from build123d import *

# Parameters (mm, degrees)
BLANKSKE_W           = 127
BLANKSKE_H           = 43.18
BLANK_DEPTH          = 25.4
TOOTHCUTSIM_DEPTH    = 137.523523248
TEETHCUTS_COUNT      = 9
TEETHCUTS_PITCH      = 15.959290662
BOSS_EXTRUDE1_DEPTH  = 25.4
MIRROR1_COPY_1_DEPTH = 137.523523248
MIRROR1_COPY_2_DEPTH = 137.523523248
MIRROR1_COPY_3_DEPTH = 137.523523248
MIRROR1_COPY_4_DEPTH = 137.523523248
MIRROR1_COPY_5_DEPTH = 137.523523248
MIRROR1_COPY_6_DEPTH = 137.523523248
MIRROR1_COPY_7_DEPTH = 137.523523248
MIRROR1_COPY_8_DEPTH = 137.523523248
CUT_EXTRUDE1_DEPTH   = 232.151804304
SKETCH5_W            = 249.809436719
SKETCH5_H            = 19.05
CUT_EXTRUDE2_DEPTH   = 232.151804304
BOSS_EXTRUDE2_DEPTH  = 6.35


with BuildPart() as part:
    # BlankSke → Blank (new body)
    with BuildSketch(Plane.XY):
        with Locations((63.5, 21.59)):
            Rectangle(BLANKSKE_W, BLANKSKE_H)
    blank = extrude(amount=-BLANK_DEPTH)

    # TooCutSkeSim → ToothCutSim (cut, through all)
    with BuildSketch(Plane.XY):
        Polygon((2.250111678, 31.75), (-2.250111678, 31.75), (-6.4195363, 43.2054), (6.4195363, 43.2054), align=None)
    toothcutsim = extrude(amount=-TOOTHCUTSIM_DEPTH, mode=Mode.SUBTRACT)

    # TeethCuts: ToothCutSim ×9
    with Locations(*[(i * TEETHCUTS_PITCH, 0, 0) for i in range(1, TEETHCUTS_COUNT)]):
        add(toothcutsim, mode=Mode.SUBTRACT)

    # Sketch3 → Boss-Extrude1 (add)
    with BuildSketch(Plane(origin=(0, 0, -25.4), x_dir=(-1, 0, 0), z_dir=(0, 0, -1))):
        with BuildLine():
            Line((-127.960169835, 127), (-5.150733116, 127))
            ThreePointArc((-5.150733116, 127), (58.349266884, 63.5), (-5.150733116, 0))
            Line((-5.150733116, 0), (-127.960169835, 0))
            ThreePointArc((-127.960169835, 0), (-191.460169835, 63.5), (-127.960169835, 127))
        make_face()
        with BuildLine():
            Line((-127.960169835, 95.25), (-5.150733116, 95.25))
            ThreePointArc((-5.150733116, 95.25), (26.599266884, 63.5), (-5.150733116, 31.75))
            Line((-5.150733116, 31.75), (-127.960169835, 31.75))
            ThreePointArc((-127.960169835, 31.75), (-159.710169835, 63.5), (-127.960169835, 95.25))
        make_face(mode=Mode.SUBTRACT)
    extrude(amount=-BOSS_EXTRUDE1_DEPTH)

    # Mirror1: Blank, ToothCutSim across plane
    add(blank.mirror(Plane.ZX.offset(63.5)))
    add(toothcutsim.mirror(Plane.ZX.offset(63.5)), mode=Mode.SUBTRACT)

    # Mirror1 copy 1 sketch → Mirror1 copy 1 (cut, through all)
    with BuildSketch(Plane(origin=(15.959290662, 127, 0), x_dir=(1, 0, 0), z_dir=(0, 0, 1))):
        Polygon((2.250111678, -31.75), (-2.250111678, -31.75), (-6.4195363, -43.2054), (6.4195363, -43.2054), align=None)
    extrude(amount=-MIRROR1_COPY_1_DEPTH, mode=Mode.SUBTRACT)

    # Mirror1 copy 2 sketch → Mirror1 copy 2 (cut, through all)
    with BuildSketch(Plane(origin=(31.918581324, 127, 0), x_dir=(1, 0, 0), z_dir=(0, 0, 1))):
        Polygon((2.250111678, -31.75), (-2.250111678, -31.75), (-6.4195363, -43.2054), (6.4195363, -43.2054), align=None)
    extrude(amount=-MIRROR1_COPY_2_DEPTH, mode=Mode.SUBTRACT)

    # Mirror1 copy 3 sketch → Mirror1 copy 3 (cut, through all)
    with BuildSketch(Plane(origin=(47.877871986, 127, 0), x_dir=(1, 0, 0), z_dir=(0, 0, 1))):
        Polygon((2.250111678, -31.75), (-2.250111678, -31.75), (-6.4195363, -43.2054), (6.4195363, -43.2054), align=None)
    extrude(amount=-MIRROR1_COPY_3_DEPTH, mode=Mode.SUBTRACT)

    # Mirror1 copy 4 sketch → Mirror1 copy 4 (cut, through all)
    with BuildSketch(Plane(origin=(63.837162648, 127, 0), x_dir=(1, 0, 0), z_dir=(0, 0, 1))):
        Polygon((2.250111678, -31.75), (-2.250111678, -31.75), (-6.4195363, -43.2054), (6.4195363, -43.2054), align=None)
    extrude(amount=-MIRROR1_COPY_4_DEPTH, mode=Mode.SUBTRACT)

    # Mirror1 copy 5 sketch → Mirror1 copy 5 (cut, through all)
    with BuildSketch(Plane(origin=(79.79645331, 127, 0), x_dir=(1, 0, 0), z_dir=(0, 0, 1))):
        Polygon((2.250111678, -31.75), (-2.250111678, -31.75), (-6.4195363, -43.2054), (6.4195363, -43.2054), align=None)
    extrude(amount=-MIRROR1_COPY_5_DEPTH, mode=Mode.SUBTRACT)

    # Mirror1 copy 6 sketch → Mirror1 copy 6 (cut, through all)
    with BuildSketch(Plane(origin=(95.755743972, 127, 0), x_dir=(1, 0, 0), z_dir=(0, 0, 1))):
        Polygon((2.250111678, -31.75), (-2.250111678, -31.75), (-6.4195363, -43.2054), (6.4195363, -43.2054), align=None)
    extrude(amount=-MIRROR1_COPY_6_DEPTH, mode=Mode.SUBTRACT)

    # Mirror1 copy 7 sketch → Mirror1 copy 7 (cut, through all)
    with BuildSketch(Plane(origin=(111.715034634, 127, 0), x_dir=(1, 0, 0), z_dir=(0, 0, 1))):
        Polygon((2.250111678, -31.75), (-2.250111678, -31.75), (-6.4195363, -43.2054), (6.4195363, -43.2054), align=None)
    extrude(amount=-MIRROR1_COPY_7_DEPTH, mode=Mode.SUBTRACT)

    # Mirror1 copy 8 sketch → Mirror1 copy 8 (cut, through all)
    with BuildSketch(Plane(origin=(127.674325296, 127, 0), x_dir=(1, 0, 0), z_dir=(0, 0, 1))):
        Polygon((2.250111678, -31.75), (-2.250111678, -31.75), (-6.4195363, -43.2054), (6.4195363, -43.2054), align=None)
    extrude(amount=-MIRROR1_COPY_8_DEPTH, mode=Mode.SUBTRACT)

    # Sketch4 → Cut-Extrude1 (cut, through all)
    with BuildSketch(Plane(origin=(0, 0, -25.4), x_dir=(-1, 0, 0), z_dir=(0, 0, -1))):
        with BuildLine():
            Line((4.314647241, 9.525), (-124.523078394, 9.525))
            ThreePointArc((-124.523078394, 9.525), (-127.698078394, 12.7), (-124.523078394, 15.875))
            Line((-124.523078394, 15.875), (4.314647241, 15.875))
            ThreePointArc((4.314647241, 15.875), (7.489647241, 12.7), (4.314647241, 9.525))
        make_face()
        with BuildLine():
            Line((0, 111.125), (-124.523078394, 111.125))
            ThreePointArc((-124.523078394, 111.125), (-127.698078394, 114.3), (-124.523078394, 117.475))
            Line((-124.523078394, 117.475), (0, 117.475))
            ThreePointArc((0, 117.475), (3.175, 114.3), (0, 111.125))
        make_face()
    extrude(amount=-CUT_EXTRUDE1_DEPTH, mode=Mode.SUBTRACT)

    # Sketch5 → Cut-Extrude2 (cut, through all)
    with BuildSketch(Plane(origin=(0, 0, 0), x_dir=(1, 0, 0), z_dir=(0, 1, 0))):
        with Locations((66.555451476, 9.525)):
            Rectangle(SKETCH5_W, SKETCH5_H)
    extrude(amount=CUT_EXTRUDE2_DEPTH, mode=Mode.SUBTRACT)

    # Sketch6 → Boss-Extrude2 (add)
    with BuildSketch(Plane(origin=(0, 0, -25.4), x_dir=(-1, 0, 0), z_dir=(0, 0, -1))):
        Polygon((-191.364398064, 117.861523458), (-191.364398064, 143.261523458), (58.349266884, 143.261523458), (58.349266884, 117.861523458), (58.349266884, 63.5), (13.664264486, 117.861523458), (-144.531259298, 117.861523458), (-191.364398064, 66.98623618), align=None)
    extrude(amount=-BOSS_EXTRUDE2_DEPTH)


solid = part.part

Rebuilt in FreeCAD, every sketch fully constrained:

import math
import FreeCAD as App
import Part
import Sketcher
from FreeCAD import Vector
Q = App.Units.Quantity


def add_polygon(sketch, points):
    """Adds a closed chain of lines whose ends are joined by coincident constraints."""
    first, n = sketch.GeometryCount, len(points)
    for a, b in zip(points, points[1:] + points[:1]):
        sketch.addGeometry(Part.LineSegment(App.Vector(*a, 0), App.Vector(*b, 0)), False)
    for i in range(n):
        sketch.addConstraint(Sketcher.Constraint("Coincident", first + i, 2, first + (i + 1) % n, 1))

doc = App.newDocument("Part")
body = doc.addObject("PartDesign::Body", "Body")

sketch1 = body.newObject("Sketcher::SketchObject", "Sketch")
sketch1.AttachmentSupport = (doc.getObject("XY_Plane"), [""])
sketch1.MapMode = "FlatFace"
add_polygon(sketch1, [(0, 43.18), (0, 0), (127, 0), (127, 43.18)])
sketch1.addConstraint(Sketcher.Constraint("Vertical", 0))
sketch1.addConstraint(Sketcher.Constraint("Horizontal", 1))
sketch1.addConstraint(Sketcher.Constraint("Vertical", 2))
sketch1.addConstraint(Sketcher.Constraint("Horizontal", 3))
sketch1.addConstraint(Sketcher.Constraint("Coincident", 0, 2, -1, 1))
sketch1.addConstraint(Sketcher.Constraint("DistanceX", 1, 1, 1, 2, Q("5 in")))
sketch1.addConstraint(Sketcher.Constraint("DistanceY", 0, 2, 0, 1, Q("1.7 in")))
pad1 = body.newObject("PartDesign::Pad", "Pad")
pad1.Profile = sketch1
pad1.Length = Q("1 in")
pad1.Reversed = True

sketch2 = body.newObject("Sketcher::SketchObject", "Sketch001")
sketch2.AttachmentSupport = (doc.getObject("XY_Plane"), [""])
sketch2.MapMode = "FlatFace"
add_polygon(sketch2, [(-2.250112, 31.75), (2.250112, 31.75), (6.419536, 43.2054), (-6.419536, 43.2054)])
sketch2.addConstraint(Sketcher.Constraint("Horizontal", 0))
sketch2.addConstraint(Sketcher.Constraint("Horizontal", 2))
sketch2.addConstraint(Sketcher.Constraint("Equal", 1, 3))
sketch2.addConstraint(Sketcher.Constraint("Angle", 1, Q("70 deg")))
sketch2.addConstraint(Sketcher.Constraint("DistanceY", -1, 1, 0, 2, Q("1.25 in")))
sketch2.addConstraint(Sketcher.Constraint("DistanceY", -1, 1, 1, 2, Q("1.701 in")))
sketch2.addConstraint(Sketcher.Constraint("DistanceX", 0, 1, 0, 2, 4.500223))
sketch2.addConstraint(Sketcher.Constraint("DistanceX", -1, 1, 0, 2, 2.250112))
pocket1 = body.newObject("PartDesign::Pocket", "Pocket")
pocket1.Profile = sketch2
pocket1.Type = "ThroughAll"
doc.recompute()

linearpattern = body.newObject("PartDesign::LinearPattern", "LinearPattern")
linearpattern.Originals = [pocket1]
linearpattern.Direction = (doc.getObject("X_Axis"), [""])
linearpattern.Mode = "offset"
linearpattern.Offset = 15.959291
linearpattern.Occurrences = 9
body.Tip = linearpattern

sketch3 = body.newObject("Sketcher::SketchObject", "Sketch002")
sketch3.AttachmentSupport = (doc.getObject("XY_Plane"), [""])
sketch3.MapMode = "FlatFace"
sketch3.AttachmentOffset = App.Placement(Vector(0, 0, -1 * 25.4), App.Rotation())
sketch3.addGeometry(Part.LineSegment(Vector(5.150733, 127, 0), Vector(127.96017, 127, 0)), False)
sketch3.addGeometry(Part.ArcOfCircle(Part.Circle(Vector(127.96017, 63.5, 0), Vector(0, 0, 1), 63.5), math.radians(-90), math.radians(90)), False)
sketch3.addGeometry(Part.LineSegment(Vector(127.96017, 0, 0), Vector(5.150733, 0, 0)), False)
sketch3.addGeometry(Part.ArcOfCircle(Part.Circle(Vector(5.150733, 63.5, 0), Vector(0, 0, 1), 63.5), math.radians(90), math.radians(270)), False)
sketch3.addGeometry(Part.LineSegment(Vector(127.96017, 95.25, 0), Vector(5.150733, 95.25, 0)), False)
sketch3.addGeometry(Part.ArcOfCircle(Part.Circle(Vector(5.150733, 63.5, 0), Vector(0, 0, 1), 31.75), math.radians(90), math.radians(270)), False)
sketch3.addGeometry(Part.LineSegment(Vector(5.150733, 31.75, 0), Vector(127.96017, 31.75, 0)), False)
sketch3.addGeometry(Part.ArcOfCircle(Part.Circle(Vector(127.96017, 63.5, 0), Vector(0, 0, 1), 31.75), math.radians(-90), math.radians(90)), False)
sketch3.addConstraint(Sketcher.Constraint("Tangent", 0, 2, 1, 2))
sketch3.addConstraint(Sketcher.Constraint("Tangent", 1, 1, 2, 1))
sketch3.addConstraint(Sketcher.Constraint("Tangent", 2, 2, 3, 2))
sketch3.addConstraint(Sketcher.Constraint("Tangent", 3, 1, 0, 1))
sketch3.addConstraint(Sketcher.Constraint("Tangent", 4, 2, 5, 1))
sketch3.addConstraint(Sketcher.Constraint("Tangent", 5, 2, 6, 1))
sketch3.addConstraint(Sketcher.Constraint("Tangent", 6, 2, 7, 1))
sketch3.addConstraint(Sketcher.Constraint("Tangent", 7, 2, 4, 1))
sketch3.addConstraint(Sketcher.Constraint("Horizontal", 0))
sketch3.addConstraint(Sketcher.Constraint("Horizontal", 2))
sketch3.addConstraint(Sketcher.Constraint("Horizontal", 4))
sketch3.addConstraint(Sketcher.Constraint("Horizontal", 6))
sketch3.addConstraint(Sketcher.Constraint("Coincident", 5, 3, 3, 3))
sketch3.addConstraint(Sketcher.Constraint("PointOnObject", 1, 1, -1))
sketch3.addConstraint(Sketcher.Constraint("Vertical", 7, 3, 0, 2))
sketch3.addConstraint(Sketcher.Constraint("Radius", 1, Q("2.5 in")))
sketch3.addConstraint(Sketcher.Constraint("Radius", 5, Q("1.25 in")))
sketch3.addConstraint(Sketcher.Constraint("DistanceX", 0, 1, 0, 2, 122.809437))
sketch3.addConstraint(Sketcher.Constraint("DistanceX", -1, 1, 1, 3, 127.96017))
pad2 = body.newObject("PartDesign::Pad", "Pad001")
pad2.Profile = sketch3
pad2.Length = Q("1 in")
doc.recompute()

datumplane = body.newObject("PartDesign::Plane", "DatumPlane")
datumplane.AttachmentSupport = (doc.getObject("XZ_Plane"), [""])
datumplane.MapMode = "FlatFace"
datumplane.AttachmentOffset = App.Placement(Vector(0, 0, -2.5 * 25.4), App.Rotation())
mirrored = body.newObject("PartDesign::Mirrored", "Mirrored")
mirrored.Originals = [pad1, pocket1]
mirrored.MirrorPlane = (datumplane, [""])
body.Tip = mirrored

sketch4 = body.newObject("Sketcher::SketchObject", "Sketch003")
sketch4.AttachmentSupport = (doc.getObject("XY_Plane"), [""])
sketch4.MapMode = "FlatFace"
add_polygon(sketch4, [(18.209402, 95.25), (13.709179, 95.25), (9.539754, 83.7946), (22.378827, 83.7946)])
sketch4.addConstraint(Sketcher.Constraint("Horizontal", 0))
sketch4.addConstraint(Sketcher.Constraint("Horizontal", 2))
sketch4.addConstraint(Sketcher.Constraint("Equal", 1, 3))
sketch4.addConstraint(Sketcher.Constraint("Angle", 1, Q("-110 deg")))
sketch4.addConstraint(Sketcher.Constraint("DistanceY", -1, 1, 0, 2, Q("3.75 in")))
sketch4.addConstraint(Sketcher.Constraint("DistanceY", -1, 1, 1, 2, Q("3.299 in")))
sketch4.addConstraint(Sketcher.Constraint("DistanceX", 0, 2, 0, 1, 4.500223))
sketch4.addConstraint(Sketcher.Constraint("DistanceX", -1, 1, 0, 2, 13.709179))
pocket2 = body.newObject("PartDesign::Pocket", "Pocket001")
pocket2.Profile = sketch4
pocket2.Type = "ThroughAll"

sketch5 = body.newObject("Sketcher::SketchObject", "Sketch004")
sketch5.AttachmentSupport = (doc.getObject("XY_Plane"), [""])
sketch5.MapMode = "FlatFace"
add_polygon(sketch5, [(34.168693, 95.25), (29.66847, 95.25), (25.499045, 83.7946), (38.338118, 83.7946)])
sketch5.addConstraint(Sketcher.Constraint("Horizontal", 0))
sketch5.addConstraint(Sketcher.Constraint("Horizontal", 2))
sketch5.addConstraint(Sketcher.Constraint("Equal", 1, 3))
sketch5.addConstraint(Sketcher.Constraint("Angle", 1, Q("-110 deg")))
sketch5.addConstraint(Sketcher.Constraint("DistanceY", -1, 1, 0, 2, Q("3.75 in")))
sketch5.addConstraint(Sketcher.Constraint("DistanceY", -1, 1, 1, 2, Q("3.299 in")))
sketch5.addConstraint(Sketcher.Constraint("DistanceX", 0, 2, 0, 1, 4.500223))
sketch5.addConstraint(Sketcher.Constraint("DistanceX", -1, 1, 0, 2, 29.66847))
pocket3 = body.newObject("PartDesign::Pocket", "Pocket002")
pocket3.Profile = sketch5
pocket3.Type = "ThroughAll"

sketch6 = body.newObject("Sketcher::SketchObject", "Sketch005")
sketch6.AttachmentSupport = (doc.getObject("XY_Plane"), [""])
sketch6.MapMode = "FlatFace"
add_polygon(sketch6, [(50.127984, 95.25), (45.62776, 95.25), (41.458336, 83.7946), (54.297408, 83.7946)])
sketch6.addConstraint(Sketcher.Constraint("Horizontal", 0))
sketch6.addConstraint(Sketcher.Constraint("Horizontal", 2))
sketch6.addConstraint(Sketcher.Constraint("Equal", 1, 3))
sketch6.addConstraint(Sketcher.Constraint("Angle", 1, Q("-110 deg")))
sketch6.addConstraint(Sketcher.Constraint("DistanceY", -1, 1, 0, 2, Q("3.75 in")))
sketch6.addConstraint(Sketcher.Constraint("DistanceY", -1, 1, 1, 2, Q("3.299 in")))
sketch6.addConstraint(Sketcher.Constraint("DistanceX", 0, 2, 0, 1, 4.500223))
sketch6.addConstraint(Sketcher.Constraint("DistanceX", -1, 1, 0, 2, 45.62776))
pocket4 = body.newObject("PartDesign::Pocket", "Pocket003")
pocket4.Profile = sketch6
pocket4.Type = "ThroughAll"

sketch7 = body.newObject("Sketcher::SketchObject", "Sketch006")
sketch7.AttachmentSupport = (doc.getObject("XY_Plane"), [""])
sketch7.MapMode = "FlatFace"
add_polygon(sketch7, [(66.087274, 95.25), (61.587051, 95.25), (57.417626, 83.7946), (70.256699, 83.7946)])
sketch7.addConstraint(Sketcher.Constraint("Horizontal", 0))
sketch7.addConstraint(Sketcher.Constraint("Horizontal", 2))
sketch7.addConstraint(Sketcher.Constraint("Equal", 1, 3))
sketch7.addConstraint(Sketcher.Constraint("Angle", 1, Q("-110 deg")))
sketch7.addConstraint(Sketcher.Constraint("DistanceY", -1, 1, 0, 2, Q("3.75 in")))
sketch7.addConstraint(Sketcher.Constraint("DistanceY", -1, 1, 1, 2, Q("3.299 in")))
sketch7.addConstraint(Sketcher.Constraint("DistanceX", -1, 1, 2, 2, 70.256699))
sketch7.addConstraint(Sketcher.Constraint("DistanceX", 0, 2, 0, 1, 4.500223))
pocket5 = body.newObject("PartDesign::Pocket", "Pocket004")
pocket5.Profile = sketch7
pocket5.Type = "ThroughAll"

sketch8 = body.newObject("Sketcher::SketchObject", "Sketch007")
sketch8.AttachmentSupport = (doc.getObject("XY_Plane"), [""])
sketch8.MapMode = "FlatFace"
add_polygon(sketch8, [(82.046565, 95.25), (77.546342, 95.25), (73.376917, 83.7946), (86.21599, 83.7946)])
sketch8.addConstraint(Sketcher.Constraint("Horizontal", 0))
sketch8.addConstraint(Sketcher.Constraint("Horizontal", 2))
sketch8.addConstraint(Sketcher.Constraint("Equal", 1, 3))
sketch8.addConstraint(Sketcher.Constraint("Angle", 1, Q("-110 deg")))
sketch8.addConstraint(Sketcher.Constraint("DistanceY", -1, 1, 0, 2, Q("3.75 in")))
sketch8.addConstraint(Sketcher.Constraint("DistanceY", -1, 1, 1, 2, Q("3.299 in")))
sketch8.addConstraint(Sketcher.Constraint("DistanceX", 0, 2, 0, 1, 4.500223))
sketch8.addConstraint(Sketcher.Constraint("DistanceX", -1, 1, 0, 2, 77.546342))
pocket6 = body.newObject("PartDesign::Pocket", "Pocket005")
pocket6.Profile = sketch8
pocket6.Type = "ThroughAll"

sketch9 = body.newObject("Sketcher::SketchObject", "Sketch008")
sketch9.AttachmentSupport = (doc.getObject("XY_Plane"), [""])
sketch9.MapMode = "FlatFace"
add_polygon(sketch9, [(98.005856, 95.25), (93.505632, 95.25), (89.336208, 83.7946), (102.17528, 83.7946)])
sketch9.addConstraint(Sketcher.Constraint("Horizontal", 0))
sketch9.addConstraint(Sketcher.Constraint("Horizontal", 2))
sketch9.addConstraint(Sketcher.Constraint("Equal", 1, 3))
sketch9.addConstraint(Sketcher.Constraint("Angle", 1, Q("-110 deg")))
sketch9.addConstraint(Sketcher.Constraint("DistanceY", -1, 1, 0, 2, Q("3.75 in")))
sketch9.addConstraint(Sketcher.Constraint("DistanceY", -1, 1, 1, 2, Q("3.299 in")))
sketch9.addConstraint(Sketcher.Constraint("DistanceX", 0, 2, 0, 1, 4.500223))
sketch9.addConstraint(Sketcher.Constraint("DistanceX", -1, 1, 2, 2, 102.17528))
pocket7 = body.newObject("PartDesign::Pocket", "Pocket006")
pocket7.Profile = sketch9
pocket7.Type = "ThroughAll"

sketch10 = body.newObject("Sketcher::SketchObject", "Sketch009")
sketch10.AttachmentSupport = (doc.getObject("XY_Plane"), [""])
sketch10.MapMode = "FlatFace"
add_polygon(sketch10, [(113.965146, 95.25), (109.464923, 95.25), (105.295498, 83.7946), (118.134571, 83.7946)])
sketch10.addConstraint(Sketcher.Constraint("Horizontal", 0))
sketch10.addConstraint(Sketcher.Constraint("Horizontal", 2))
sketch10.addConstraint(Sketcher.Constraint("Equal", 1, 3))
sketch10.addConstraint(Sketcher.Constraint("Angle", 1, Q("-110 deg")))
sketch10.addConstraint(Sketcher.Constraint("DistanceY", -1, 1, 0, 2, Q("3.75 in")))
sketch10.addConstraint(Sketcher.Constraint("DistanceY", -1, 1, 1, 2, Q("3.299 in")))
sketch10.addConstraint(Sketcher.Constraint("DistanceX", -1, 1, 1, 2, 105.295498))
sketch10.addConstraint(Sketcher.Constraint("DistanceX", 0, 2, 0, 1, 4.500223))
pocket8 = body.newObject("PartDesign::Pocket", "Pocket007")
pocket8.Profile = sketch10
pocket8.Type = "ThroughAll"

sketch11 = body.newObject("Sketcher::SketchObject", "Sketch010")
sketch11.AttachmentSupport = (doc.getObject("XY_Plane"), [""])
sketch11.MapMode = "FlatFace"
add_polygon(sketch11, [(129.924437, 95.25), (125.424214, 95.25), (121.254789, 83.7946), (134.093862, 83.7946)])
sketch11.addConstraint(Sketcher.Constraint("Horizontal", 0))
sketch11.addConstraint(Sketcher.Constraint("Horizontal", 2))
sketch11.addConstraint(Sketcher.Constraint("Equal", 1, 3))
sketch11.addConstraint(Sketcher.Constraint("Angle", 1, Q("-110 deg")))
sketch11.addConstraint(Sketcher.Constraint("DistanceY", -1, 1, 0, 2, Q("3.75 in")))
sketch11.addConstraint(Sketcher.Constraint("DistanceY", -1, 1, 1, 2, Q("3.299 in")))
sketch11.addConstraint(Sketcher.Constraint("DistanceX", 0, 2, 0, 1, 4.500223))
sketch11.addConstraint(Sketcher.Constraint("DistanceX", -1, 1, 1, 2, 121.254789))
pocket9 = body.newObject("PartDesign::Pocket", "Pocket008")
pocket9.Profile = sketch11
pocket9.Type = "ThroughAll"

sketch12 = body.newObject("Sketcher::SketchObject", "Sketch011")
sketch12.AttachmentSupport = (doc.getObject("XY_Plane"), [""])
sketch12.MapMode = "FlatFace"
sketch12.AttachmentOffset = App.Placement(Vector(0, 0, -1 * 25.4), App.Rotation())
sketch12.addGeometry(Part.LineSegment(Vector(124.523078, 9.525, 0), Vector(-4.314647, 9.525, 0)), False)
sketch12.addGeometry(Part.ArcOfCircle(Part.Circle(Vector(-4.314647, 12.7, 0), Vector(0, 0, 1), 3.175), math.radians(90), math.radians(270)), False)
sketch12.addGeometry(Part.LineSegment(Vector(-4.314647, 15.875, 0), Vector(124.523078, 15.875, 0)), False)
sketch12.addGeometry(Part.ArcOfCircle(Part.Circle(Vector(124.523078, 12.7, 0), Vector(0, 0, 1), 3.175), math.radians(-90), math.radians(90)), False)
sketch12.addGeometry(Part.LineSegment(Vector(124.523078, 111.125, 0), Vector(0, 111.125, 0)), False)
sketch12.addGeometry(Part.ArcOfCircle(Part.Circle(Vector(0, 114.3, 0), Vector(0, 0, 1), 3.175), math.radians(90), math.radians(270)), False)
sketch12.addGeometry(Part.LineSegment(Vector(0, 117.475, 0), Vector(124.523078, 117.475, 0)), False)
sketch12.addGeometry(Part.ArcOfCircle(Part.Circle(Vector(124.523078, 114.3, 0), Vector(0, 0, 1), 3.175), math.radians(-90), math.radians(90)), False)
sketch12.addConstraint(Sketcher.Constraint("Tangent", 0, 2, 1, 2))
sketch12.addConstraint(Sketcher.Constraint("Tangent", 1, 1, 2, 1))
sketch12.addConstraint(Sketcher.Constraint("Tangent", 2, 2, 3, 2))
sketch12.addConstraint(Sketcher.Constraint("Tangent", 3, 1, 0, 1))
sketch12.addConstraint(Sketcher.Constraint("Tangent", 4, 2, 5, 2))
sketch12.addConstraint(Sketcher.Constraint("Tangent", 5, 1, 6, 1))
sketch12.addConstraint(Sketcher.Constraint("Tangent", 6, 2, 7, 2))
sketch12.addConstraint(Sketcher.Constraint("Tangent", 7, 1, 4, 1))
sketch12.addConstraint(Sketcher.Constraint("Horizontal", 0))
sketch12.addConstraint(Sketcher.Constraint("Horizontal", 2))
sketch12.addConstraint(Sketcher.Constraint("Horizontal", 4))
sketch12.addConstraint(Sketcher.Constraint("Horizontal", 6))
sketch12.addConstraint(Sketcher.Constraint("Equal", 3, 5))
sketch12.addConstraint(Sketcher.Constraint("PointOnObject", 5, 3, -2))
sketch12.addConstraint(Sketcher.Constraint("Vertical", 3, 3, 7, 3))
sketch12.addConstraint(Sketcher.Constraint("Radius", 1, Q("0.125 in")))
sketch12.addConstraint(Sketcher.Constraint("DistanceY", 1, 3, 5, 3, Q("4 in")))
sketch12.addConstraint(Sketcher.Constraint("DistanceY", -1, 1, 1, 3, Q("0.5 in")))
sketch12.addConstraint(Sketcher.Constraint("DistanceX", 4, 2, 4, 1, 124.523078))
sketch12.addConstraint(Sketcher.Constraint("DistanceX", 0, 2, 0, 1, 128.837726))
pocket10 = body.newObject("PartDesign::Pocket", "Pocket009")
pocket10.Profile = sketch12
pocket10.Type = "ThroughAll"
pocket10.Reversed = True

sketch13 = body.newObject("Sketcher::SketchObject", "Sketch012")
sketch13.AttachmentSupport = (doc.getObject("XZ_Plane"), [""])
sketch13.MapMode = "FlatFace"
add_polygon(sketch13, [(-58.349267, -19.05), (-58.349267, 0), (191.46017, 0), (191.46017, -19.05)])
sketch13.addConstraint(Sketcher.Constraint("Vertical", 0))
sketch13.addConstraint(Sketcher.Constraint("Horizontal", 1))
sketch13.addConstraint(Sketcher.Constraint("Vertical", 2))
sketch13.addConstraint(Sketcher.Constraint("Horizontal", 3))
sketch13.addConstraint(Sketcher.Constraint("PointOnObject", 0, 2, -1))
sketch13.addConstraint(Sketcher.Constraint("DistanceY", 0, 1, 0, 2, Q("0.75 in")))
sketch13.addConstraint(Sketcher.Constraint("DistanceX", 1, 1, 1, 2, 249.809437))
sketch13.addConstraint(Sketcher.Constraint("DistanceX", -1, 1, 1, 2, 191.46017))
pocket11 = body.newObject("PartDesign::Pocket", "Pocket010")
pocket11.Profile = sketch13
pocket11.Type = "ThroughAll"

sketch14 = body.newObject("Sketcher::SketchObject", "Sketch013")
sketch14.AttachmentSupport = (doc.getObject("XY_Plane"), [""])
sketch14.MapMode = "FlatFace"
sketch14.AttachmentOffset = App.Placement(Vector(0, 0, -1 * 25.4), App.Rotation())
add_polygon(sketch14, [(191.364398, 143.261523), (191.364398, 66.986236), (144.531259, 117.861523), (-13.664264, 117.861523), (-58.349267, 63.5), (-58.349267, 143.261523)])
sketch14.addConstraint(Sketcher.Constraint("Vertical", 0))
sketch14.addConstraint(Sketcher.Constraint("Horizontal", 2))
sketch14.addConstraint(Sketcher.Constraint("Vertical", 4))
sketch14.addConstraint(Sketcher.Constraint("Horizontal", 5))
sketch14.addConstraint(Sketcher.Constraint("DistanceY", 2, 2, 4, 2, Q("1 in")))
sketch14.addConstraint(Sketcher.Constraint("DistanceY", -1, 1, 3, 2, Q("2.5 in")))
sketch14.addConstraint(Sketcher.Constraint("DistanceX", -1, 1, 0, 2, 191.364398))
sketch14.addConstraint(Sketcher.Constraint("DistanceX", 2, 2, 2, 1, 158.195524))
sketch14.addConstraint(Sketcher.Constraint("DistanceX", 5, 1, 5, 2, 249.713665))
sketch14.addConstraint(Sketcher.Constraint("DistanceY", 0, 2, 0, 1, 76.275287))
sketch14.addConstraint(Sketcher.Constraint("DistanceY", 4, 1, 4, 2, 79.761523))
sketch14.addConstraint(Sketcher.Constraint("DistanceX", -1, 1, 1, 2, 144.531259))
pad3 = body.newObject("PartDesign::Pad", "Pad002")
pad3.Profile = sketch14
pad3.Length = Q("0.25 in")

doc.recompute()
